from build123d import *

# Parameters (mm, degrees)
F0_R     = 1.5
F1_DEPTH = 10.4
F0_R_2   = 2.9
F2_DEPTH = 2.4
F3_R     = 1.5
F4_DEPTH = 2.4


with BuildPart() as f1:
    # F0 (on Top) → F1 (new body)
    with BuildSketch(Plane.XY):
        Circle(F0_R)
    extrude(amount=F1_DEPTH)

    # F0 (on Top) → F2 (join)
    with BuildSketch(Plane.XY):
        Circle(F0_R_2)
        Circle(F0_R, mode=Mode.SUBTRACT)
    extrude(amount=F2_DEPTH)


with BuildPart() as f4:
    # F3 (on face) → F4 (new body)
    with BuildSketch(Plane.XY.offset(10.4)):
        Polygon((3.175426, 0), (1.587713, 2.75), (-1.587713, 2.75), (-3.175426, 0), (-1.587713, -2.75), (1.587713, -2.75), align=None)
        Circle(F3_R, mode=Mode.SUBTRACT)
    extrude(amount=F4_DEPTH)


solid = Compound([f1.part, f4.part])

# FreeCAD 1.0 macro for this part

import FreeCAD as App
import Part
import Sketcher
from FreeCAD import Vector
Q = App.Units.Quantity

doc = App.newDocument("Part")
body = doc.addObject("PartDesign::Body", "Body")

sketch1 = body.newObject("Sketcher::SketchObject", "Sketch")
sketch1.AttachmentSupport = (doc.getObject("XY_Plane"), [""])
sketch1.MapMode = "FlatFace"
sketch1.addGeometry(Part.Circle(Vector(0, 0, 0), Vector(0, 0, 1), 1.5), False)
sketch1.addConstraint([
    Sketcher.Constraint("Coincident", 0, 3, -1, 1),
    Sketcher.Constraint("Diameter", 0, 3.0),
])
pad1 = body.newObject("PartDesign::Pad", "Pad")
pad1.Profile = sketch1
pad1.Length = 10.4

sketch2 = body.newObject("Sketcher::SketchObject", "Sketch001")
sketch2.AttachmentSupport = (doc.getObject("XY_Plane"), [""])
sketch2.MapMode = "FlatFace"
sketch2.addGeometry([
    Part.Circle(Vector(0, 0, 0), Vector(0, 0, 1), 2.9),
    Part.Circle(Vector(0, 0, 0), Vector(0, 0, 1), 1.5),
], False)
sketch2.addConstraint([
    Sketcher.Constraint("Coincident", 0, 3, -1, 1),
    Sketcher.Constraint("Coincident", 1, 3, -1, 1),
    Sketcher.Constraint("Diameter", 1, 3.0),
    Sketcher.Constraint("Diameter", 0, 5.8),
])
pad2 = body.newObject("PartDesign::Pad", "Pad001")
pad2.Profile = sketch2
pad2.Length = 2.4
body2 = doc.addObject("PartDesign::Body", "Body001")

sketch3 = body2.newObject("Sketcher::SketchObject", "Sketch002")
sketch3.AttachmentSupport = (doc.getObject("XY_Plane001"), [""])
sketch3.MapMode = "FlatFace"
sketch3.AttachmentOffset = App.Placement(Vector(0, 0, 10.4), App.Rotation())
sketch3.addGeometry([
    Part.LineSegment(Vector(3.2, 0, 0), Vector(1.6, 2.8, 0)),
    Part.LineSegment(Vector(1.6, 2.8, 0), Vector(-1.6, 2.8, 0)),
    Part.LineSegment(Vector(-1.6, 2.8, 0), Vector(-3.2, 0, 0)),
    Part.LineSegment(Vector(-3.2, 0, 0), Vector(-1.6, -2.8, 0)),
    Part.LineSegment(Vector(-1.6, -2.8, 0), Vector(1.6, -2.8, 0)),
    Part.LineSegment(Vector(1.6, -2.8, 0), Vector(3.2, 0, 0)),
    Part.Circle(Vector(0, 0, 0), Vector(0, 0, 1), 1.5),
], False)
sketch3.addConstraint([
    Sketcher.Constraint("Coincident", 0, 2, 1, 1),
    Sketcher.Constraint("Coincident", 1, 2, 2, 1),
    Sketcher.Constraint("Coincident", 2, 2, 3, 1),
    Sketcher.Constraint("Coincident", 3, 2, 4, 1),
    Sketcher.Constraint("Coincident", 4, 2, 5, 1),
    Sketcher.Constraint("Coincident", 5, 2, 0, 1),
    Sketcher.Constraint("Horizontal", 1),
    Sketcher.Constraint("Horizontal", 4),
    Sketcher.Constraint("Coincident", 6, 3, -1, 1),
    Sketcher.Constraint("Symmetric", 0, 2, 3, 2, -1, 1),
    Sketcher.Constraint("Symmetric", 2, 2, 5, 2, -1, 1),
    Sketcher.Constraint("PointOnObject", 2, 2, -1),
    Sketcher.Constraint("Parallel", 2, 5),
    Sketcher.Constraint("Vertical", 1, 2, 3, 2),
    Sketcher.Constraint("Diameter", 6, 3.0),
    Sketcher.Constraint("Angle", 0, Q("119.999996 deg")),
    Sketcher.Constraint("DistanceY", 3, 2, 1, 2, 5.5),
    Sketcher.Constraint("DistanceX", 1, 2, 1, 1, 3.175426),
])
pad3 = body2.newObject("PartDesign::Pad", "Pad002")
pad3.Profile = sketch3
pad3.Length = 2.4

doc.recompute()
